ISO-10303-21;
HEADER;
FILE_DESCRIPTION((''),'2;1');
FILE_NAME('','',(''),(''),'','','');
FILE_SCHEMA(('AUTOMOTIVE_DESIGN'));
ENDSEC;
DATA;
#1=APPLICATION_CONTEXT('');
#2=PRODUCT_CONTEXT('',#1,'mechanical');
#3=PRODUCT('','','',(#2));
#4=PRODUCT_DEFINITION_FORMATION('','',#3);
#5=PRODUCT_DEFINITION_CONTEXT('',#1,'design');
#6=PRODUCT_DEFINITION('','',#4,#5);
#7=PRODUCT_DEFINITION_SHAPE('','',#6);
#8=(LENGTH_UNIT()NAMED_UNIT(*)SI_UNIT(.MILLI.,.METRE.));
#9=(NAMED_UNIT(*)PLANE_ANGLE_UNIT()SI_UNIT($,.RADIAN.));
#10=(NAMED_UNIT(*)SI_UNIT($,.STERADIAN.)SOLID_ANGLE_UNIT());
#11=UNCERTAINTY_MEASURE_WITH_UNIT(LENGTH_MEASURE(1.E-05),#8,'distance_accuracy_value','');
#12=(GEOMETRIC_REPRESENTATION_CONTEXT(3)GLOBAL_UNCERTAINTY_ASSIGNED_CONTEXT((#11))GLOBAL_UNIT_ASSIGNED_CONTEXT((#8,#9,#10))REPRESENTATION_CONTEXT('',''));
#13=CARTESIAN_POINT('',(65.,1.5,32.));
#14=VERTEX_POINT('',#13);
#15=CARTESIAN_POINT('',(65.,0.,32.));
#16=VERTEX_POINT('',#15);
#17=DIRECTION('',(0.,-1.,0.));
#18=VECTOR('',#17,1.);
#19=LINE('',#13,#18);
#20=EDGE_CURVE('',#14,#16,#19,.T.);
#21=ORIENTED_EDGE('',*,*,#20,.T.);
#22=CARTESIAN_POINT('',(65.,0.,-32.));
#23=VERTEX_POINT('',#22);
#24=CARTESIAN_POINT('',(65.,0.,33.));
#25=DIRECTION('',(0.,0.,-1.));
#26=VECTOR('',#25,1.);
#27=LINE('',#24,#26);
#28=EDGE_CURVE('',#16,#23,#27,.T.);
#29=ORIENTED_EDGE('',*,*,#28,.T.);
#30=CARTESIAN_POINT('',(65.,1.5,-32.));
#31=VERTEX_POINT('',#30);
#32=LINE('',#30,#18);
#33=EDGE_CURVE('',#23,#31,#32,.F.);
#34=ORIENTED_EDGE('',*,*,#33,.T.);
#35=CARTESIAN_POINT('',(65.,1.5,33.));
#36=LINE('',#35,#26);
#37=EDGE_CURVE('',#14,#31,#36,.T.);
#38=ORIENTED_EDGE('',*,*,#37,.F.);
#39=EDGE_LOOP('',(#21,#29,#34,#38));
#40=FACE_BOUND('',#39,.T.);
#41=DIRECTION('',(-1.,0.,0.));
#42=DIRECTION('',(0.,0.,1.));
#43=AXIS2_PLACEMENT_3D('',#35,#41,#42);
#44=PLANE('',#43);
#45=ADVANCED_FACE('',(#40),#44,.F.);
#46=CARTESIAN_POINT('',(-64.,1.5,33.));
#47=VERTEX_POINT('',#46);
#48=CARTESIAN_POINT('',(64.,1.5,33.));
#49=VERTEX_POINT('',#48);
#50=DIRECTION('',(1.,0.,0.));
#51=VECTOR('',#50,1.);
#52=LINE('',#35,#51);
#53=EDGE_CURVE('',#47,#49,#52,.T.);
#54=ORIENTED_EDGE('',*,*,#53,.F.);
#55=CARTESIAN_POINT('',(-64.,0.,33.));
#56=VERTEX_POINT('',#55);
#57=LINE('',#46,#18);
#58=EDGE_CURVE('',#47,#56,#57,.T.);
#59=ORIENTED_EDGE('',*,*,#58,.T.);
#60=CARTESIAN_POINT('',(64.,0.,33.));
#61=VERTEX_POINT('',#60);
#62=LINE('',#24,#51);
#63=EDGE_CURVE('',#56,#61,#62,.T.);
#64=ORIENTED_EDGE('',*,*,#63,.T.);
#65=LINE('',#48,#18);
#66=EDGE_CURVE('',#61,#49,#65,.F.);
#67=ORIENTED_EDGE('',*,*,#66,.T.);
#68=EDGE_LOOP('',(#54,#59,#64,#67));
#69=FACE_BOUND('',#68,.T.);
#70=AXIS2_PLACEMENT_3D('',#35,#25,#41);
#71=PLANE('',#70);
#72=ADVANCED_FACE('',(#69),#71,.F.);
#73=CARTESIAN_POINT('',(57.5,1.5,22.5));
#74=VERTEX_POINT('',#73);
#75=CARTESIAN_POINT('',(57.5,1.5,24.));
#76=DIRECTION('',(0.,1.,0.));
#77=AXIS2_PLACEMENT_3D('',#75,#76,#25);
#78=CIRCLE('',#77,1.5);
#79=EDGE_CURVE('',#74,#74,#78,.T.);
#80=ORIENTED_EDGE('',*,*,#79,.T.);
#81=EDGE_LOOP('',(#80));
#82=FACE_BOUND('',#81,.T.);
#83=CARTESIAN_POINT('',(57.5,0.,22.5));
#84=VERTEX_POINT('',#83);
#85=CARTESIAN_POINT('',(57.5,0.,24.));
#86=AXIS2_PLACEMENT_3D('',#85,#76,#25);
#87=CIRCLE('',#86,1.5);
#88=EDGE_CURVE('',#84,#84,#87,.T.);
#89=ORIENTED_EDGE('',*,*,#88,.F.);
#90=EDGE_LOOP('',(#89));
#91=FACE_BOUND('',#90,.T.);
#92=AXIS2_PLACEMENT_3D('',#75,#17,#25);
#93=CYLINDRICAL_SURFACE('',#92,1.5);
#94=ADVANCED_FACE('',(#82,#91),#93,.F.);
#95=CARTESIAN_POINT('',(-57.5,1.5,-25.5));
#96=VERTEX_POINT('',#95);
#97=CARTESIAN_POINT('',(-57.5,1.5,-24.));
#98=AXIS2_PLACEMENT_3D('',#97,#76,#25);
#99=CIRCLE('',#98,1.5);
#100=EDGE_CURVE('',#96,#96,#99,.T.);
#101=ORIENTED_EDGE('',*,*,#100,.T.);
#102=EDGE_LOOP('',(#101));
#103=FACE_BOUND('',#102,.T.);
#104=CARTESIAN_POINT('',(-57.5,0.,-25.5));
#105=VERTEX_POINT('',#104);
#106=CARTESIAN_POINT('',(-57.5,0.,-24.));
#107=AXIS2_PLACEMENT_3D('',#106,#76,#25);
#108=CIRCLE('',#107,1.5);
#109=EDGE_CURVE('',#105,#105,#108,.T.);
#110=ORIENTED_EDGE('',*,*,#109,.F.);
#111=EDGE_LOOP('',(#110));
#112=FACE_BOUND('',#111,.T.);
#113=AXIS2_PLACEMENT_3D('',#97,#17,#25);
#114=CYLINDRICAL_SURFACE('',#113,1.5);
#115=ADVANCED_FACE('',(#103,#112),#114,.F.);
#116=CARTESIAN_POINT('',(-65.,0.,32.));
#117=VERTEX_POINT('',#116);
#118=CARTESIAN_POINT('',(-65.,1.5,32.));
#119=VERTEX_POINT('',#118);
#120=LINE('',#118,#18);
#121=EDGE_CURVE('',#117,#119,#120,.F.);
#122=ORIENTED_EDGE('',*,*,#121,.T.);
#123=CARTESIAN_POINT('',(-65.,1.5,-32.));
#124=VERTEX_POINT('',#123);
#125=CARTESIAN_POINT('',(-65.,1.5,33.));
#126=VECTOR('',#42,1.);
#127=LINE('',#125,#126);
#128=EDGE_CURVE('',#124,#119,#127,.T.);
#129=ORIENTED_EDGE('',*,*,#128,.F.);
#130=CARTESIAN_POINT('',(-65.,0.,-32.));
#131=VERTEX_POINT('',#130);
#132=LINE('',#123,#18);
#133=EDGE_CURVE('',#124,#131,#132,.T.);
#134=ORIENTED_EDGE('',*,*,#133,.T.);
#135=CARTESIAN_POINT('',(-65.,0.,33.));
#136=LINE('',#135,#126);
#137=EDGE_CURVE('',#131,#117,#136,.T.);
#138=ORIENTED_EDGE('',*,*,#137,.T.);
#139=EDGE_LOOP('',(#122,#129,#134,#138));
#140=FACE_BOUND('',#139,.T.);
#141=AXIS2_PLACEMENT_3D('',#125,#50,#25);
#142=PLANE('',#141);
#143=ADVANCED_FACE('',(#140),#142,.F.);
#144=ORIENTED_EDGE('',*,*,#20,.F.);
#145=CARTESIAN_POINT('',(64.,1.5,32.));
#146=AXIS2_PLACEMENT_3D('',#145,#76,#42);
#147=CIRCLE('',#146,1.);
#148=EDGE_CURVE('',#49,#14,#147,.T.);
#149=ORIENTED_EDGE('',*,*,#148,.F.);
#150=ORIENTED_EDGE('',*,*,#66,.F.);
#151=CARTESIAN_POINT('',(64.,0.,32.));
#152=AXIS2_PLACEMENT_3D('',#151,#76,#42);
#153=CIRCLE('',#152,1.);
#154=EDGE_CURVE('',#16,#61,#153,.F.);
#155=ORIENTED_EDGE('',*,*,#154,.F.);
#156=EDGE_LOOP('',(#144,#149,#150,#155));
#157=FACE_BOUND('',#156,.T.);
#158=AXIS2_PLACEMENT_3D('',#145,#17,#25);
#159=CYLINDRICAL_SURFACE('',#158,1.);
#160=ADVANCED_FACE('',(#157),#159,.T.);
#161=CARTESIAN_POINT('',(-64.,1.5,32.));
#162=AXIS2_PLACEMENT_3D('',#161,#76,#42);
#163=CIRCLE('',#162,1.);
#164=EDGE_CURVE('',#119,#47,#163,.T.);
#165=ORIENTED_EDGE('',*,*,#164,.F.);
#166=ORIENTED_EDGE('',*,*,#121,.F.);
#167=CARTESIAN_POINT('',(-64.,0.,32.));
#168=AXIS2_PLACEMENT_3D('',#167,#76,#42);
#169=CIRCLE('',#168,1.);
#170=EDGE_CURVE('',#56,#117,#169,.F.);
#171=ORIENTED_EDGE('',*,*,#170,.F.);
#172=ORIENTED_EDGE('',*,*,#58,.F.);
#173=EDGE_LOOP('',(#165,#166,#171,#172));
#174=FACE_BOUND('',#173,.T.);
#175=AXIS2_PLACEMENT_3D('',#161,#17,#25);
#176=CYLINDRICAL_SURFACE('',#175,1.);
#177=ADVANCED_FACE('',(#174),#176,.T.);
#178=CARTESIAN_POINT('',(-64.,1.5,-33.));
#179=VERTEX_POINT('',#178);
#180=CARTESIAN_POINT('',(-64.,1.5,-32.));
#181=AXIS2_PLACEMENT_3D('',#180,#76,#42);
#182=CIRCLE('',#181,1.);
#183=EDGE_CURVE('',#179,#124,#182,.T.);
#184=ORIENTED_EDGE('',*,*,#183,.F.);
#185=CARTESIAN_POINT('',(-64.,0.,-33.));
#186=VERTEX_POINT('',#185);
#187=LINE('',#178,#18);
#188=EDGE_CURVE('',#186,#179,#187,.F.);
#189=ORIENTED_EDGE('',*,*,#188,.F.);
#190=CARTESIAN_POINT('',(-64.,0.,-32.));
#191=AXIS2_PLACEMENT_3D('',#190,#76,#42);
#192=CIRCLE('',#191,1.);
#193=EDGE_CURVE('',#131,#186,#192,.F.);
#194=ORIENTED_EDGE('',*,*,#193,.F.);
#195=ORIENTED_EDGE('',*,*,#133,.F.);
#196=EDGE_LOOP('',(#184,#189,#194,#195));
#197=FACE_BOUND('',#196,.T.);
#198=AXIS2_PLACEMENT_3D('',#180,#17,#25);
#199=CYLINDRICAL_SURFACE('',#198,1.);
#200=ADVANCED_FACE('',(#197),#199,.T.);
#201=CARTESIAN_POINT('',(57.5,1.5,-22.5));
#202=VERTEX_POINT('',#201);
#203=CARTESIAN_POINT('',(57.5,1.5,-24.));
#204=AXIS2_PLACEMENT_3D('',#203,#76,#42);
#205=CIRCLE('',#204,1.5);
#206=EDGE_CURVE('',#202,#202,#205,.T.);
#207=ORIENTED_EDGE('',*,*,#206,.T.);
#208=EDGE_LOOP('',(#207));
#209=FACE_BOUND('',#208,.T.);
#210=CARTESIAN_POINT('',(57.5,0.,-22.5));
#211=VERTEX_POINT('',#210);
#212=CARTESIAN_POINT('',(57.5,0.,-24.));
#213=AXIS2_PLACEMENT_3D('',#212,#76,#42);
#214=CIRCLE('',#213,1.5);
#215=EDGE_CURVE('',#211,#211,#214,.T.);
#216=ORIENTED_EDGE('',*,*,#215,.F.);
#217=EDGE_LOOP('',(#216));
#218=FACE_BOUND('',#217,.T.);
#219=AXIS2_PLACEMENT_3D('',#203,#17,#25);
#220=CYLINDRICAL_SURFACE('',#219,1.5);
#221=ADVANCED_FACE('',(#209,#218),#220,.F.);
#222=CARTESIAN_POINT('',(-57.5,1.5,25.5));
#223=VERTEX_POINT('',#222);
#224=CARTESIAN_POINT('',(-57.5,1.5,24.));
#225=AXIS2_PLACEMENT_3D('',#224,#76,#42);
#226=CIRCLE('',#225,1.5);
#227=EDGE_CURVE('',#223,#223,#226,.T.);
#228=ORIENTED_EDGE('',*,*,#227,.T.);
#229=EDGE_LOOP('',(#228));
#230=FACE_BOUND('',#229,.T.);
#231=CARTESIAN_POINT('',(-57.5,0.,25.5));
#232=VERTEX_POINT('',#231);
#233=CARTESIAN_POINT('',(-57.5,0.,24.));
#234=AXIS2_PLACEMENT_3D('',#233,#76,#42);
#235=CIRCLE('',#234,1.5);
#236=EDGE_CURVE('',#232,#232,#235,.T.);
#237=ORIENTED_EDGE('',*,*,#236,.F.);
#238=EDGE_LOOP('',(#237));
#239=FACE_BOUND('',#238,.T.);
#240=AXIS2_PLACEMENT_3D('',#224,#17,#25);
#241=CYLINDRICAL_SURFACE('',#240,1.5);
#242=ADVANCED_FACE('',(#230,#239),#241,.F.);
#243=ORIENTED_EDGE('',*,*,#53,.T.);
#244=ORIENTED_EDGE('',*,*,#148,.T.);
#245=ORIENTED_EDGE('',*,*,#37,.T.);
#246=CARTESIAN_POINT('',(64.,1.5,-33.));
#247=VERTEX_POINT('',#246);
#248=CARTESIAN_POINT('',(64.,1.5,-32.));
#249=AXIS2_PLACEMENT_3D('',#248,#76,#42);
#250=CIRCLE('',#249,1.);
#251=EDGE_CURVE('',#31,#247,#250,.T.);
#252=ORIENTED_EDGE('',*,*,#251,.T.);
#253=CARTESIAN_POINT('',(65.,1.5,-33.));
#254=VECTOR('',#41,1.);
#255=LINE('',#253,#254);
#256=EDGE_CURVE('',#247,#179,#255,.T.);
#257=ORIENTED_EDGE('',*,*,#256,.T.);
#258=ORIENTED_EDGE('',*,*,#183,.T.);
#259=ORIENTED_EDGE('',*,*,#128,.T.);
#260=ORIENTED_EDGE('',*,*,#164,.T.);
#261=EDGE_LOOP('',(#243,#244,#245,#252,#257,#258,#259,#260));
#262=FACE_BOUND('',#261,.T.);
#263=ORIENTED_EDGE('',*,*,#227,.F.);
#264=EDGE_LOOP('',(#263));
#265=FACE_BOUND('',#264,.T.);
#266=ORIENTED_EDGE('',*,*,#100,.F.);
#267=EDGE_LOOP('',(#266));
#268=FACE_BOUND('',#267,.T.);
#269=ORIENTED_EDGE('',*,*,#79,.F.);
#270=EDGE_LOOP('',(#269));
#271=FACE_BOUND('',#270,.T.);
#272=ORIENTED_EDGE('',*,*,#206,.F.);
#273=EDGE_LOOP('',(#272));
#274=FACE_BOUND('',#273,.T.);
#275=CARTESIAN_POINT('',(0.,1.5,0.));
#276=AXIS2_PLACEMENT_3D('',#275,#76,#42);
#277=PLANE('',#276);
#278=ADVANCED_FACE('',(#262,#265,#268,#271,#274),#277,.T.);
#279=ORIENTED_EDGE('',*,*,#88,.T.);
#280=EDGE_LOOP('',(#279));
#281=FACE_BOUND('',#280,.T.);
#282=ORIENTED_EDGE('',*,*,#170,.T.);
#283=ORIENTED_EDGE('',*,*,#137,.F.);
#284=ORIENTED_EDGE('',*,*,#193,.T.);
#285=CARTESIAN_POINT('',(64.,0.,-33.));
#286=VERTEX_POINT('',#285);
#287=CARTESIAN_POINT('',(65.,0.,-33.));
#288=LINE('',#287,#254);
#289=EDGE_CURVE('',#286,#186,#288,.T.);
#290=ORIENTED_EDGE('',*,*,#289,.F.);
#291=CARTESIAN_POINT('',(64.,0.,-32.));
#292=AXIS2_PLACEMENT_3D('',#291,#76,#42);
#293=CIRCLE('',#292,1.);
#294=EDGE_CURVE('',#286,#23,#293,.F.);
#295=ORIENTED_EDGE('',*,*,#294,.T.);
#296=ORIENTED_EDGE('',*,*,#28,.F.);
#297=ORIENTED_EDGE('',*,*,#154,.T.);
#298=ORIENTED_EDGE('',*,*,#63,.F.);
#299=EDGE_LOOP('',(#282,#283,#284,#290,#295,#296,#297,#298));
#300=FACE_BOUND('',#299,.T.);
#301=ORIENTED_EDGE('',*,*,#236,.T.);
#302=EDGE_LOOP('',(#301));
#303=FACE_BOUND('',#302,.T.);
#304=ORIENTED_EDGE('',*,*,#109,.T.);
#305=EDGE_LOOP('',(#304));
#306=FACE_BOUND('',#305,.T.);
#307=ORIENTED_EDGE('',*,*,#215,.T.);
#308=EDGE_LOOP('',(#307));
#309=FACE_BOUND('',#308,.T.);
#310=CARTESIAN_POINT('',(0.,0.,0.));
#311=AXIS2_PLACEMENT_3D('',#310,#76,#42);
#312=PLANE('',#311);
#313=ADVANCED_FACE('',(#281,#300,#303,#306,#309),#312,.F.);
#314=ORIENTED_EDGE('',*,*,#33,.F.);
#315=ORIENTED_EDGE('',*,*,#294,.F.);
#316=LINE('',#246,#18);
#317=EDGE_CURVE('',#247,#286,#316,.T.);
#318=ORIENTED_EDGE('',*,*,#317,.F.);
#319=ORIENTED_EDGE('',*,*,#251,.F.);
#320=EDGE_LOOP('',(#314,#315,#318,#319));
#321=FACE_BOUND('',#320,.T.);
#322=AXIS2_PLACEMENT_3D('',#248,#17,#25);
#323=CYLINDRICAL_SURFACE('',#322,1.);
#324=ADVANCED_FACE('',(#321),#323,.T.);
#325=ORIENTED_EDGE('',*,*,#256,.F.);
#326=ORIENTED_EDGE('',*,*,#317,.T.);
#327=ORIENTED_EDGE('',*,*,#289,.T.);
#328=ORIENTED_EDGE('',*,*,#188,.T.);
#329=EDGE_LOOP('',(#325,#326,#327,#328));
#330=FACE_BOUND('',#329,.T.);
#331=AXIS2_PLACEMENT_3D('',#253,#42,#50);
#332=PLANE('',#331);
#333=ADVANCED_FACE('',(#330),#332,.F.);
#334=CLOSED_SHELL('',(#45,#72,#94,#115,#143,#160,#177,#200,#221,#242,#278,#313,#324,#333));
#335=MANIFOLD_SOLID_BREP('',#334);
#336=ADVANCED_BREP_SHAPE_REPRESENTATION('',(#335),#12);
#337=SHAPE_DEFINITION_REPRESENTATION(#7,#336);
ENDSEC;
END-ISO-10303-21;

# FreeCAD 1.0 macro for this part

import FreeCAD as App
import Part
import Sketcher
from FreeCAD import Vector
Q = App.Units.Quantity


def edges_at(feature, points):
    """Names of the edges that pass closest to the given points."""
    edges = feature.Shape.Edges
    near = lambda p: min(range(len(edges)), key=lambda i: edges[i].distToShape(Part.Vertex(*p))[0])
    return sorted({f"Edge{near(p) + 1}" for p in points})


def add_polygon(sketch, points):
    """Adds a closed chain of lines whose ends are joined by coincident constraints."""
    first, n = sketch.GeometryCount, len(points)
    for a, b in zip(points, points[1:] + points[:1]):
        sketch.addGeometry(Part.LineSegment(App.Vector(*a, 0), App.Vector(*b, 0)), False)
    for i in range(n):
        sketch.addConstraint(Sketcher.Constraint("Coincident", first + i, 2, first + (i + 1) % n, 1))

doc = App.newDocument("Part")
body = doc.addObject("PartDesign::Body", "Body")

sketch1 = body.newObject("Sketcher::SketchObject", "Sketch")
sketch1.AttachmentSupport = (doc.getObject("XZ_Plane"), [""])
sketch1.MapMode = "FlatFace"
add_polygon(sketch1, [(-65, -33), (-65, 33), (65, 33), (65, -33)])
sketch1.addGeometry(Part.Circle(Vector(-57.5, 24, 0), Vector(0, 0, 1), 1.5), False)
sketch1.addGeometry(Part.Circle(Vector(57.5, 24, 0), Vector(0, 0, 1), 1.5), False)
sketch1.addGeometry(Part.Circle(Vector(-57.5, -24, 0), Vector(0, 0, 1), 1.5), False)
sketch1.addGeometry(Part.Circle(Vector(57.5, -24, 0), Vector(0, 0, 1), 1.5), False)
sketch1.addConstraint(Sketcher.Constraint("Vertical", 0))
sketch1.addConstraint(Sketcher.Constraint("Horizontal", 1))
sketch1.addConstraint(Sketcher.Constraint("Vertical", 2))
sketch1.addConstraint(Sketcher.Constraint("Horizontal", 3))
sketch1.addConstraint(Sketcher.Constraint("Equal", 4, 5))
sketch1.addConstraint(Sketcher.Constraint("Equal", 5, 6))
sketch1.addConstraint(Sketcher.Constraint("Equal", 6, 7))
sketch1.addConstraint(Sketcher.Constraint("Symmetric", 5, 3, 6, 3, -1, 1))
sketch1.addConstraint(Sketcher.Constraint("Symmetric", 4, 3, 7, 3, -1, 1))
sketch1.addConstraint(Sketcher.Constraint("Symmetric", 0, 2, 2, 2, -1, 1))
sketch1.addConstraint(Sketcher.Constraint("Symmetric", 4, 3, 5, 3, -2))
sketch1.addConstraint(Sketcher.Constraint("Diameter", 4, Q("3 mm")))
sketch1.addConstraint(Sketcher.Constraint("DistanceX", 1, 1, 1, 2, Q("130 mm")))
sketch1.addConstraint(Sketcher.Constraint("DistanceY", 0, 1, 0, 2, Q("66 mm")))
sketch1.addConstraint(Sketcher.Constraint("DistanceY", -1, 1, 4, 3, Q("24 mm")))
sketch1.addConstraint(Sketcher.Constraint("DistanceX", 4, 3, 5, 3, Q("115 mm")))
pad1 = body.newObject("PartDesign::Pad", "Pad")
pad1.Profile = sketch1
pad1.Length = 1.5
pad1.Reversed = True
doc.recompute()

fillet = body.newObject("PartDesign::Fillet", "Fillet")
fillet.Base = (pad1, edges_at(pad1, [
    (-65, 0.75, -33),
    (65, 0.75, -33),
    (65, 0.75, 33),
    (-65, 0.75, 33),
]))
fillet.Radius = 1

doc.recompute()
